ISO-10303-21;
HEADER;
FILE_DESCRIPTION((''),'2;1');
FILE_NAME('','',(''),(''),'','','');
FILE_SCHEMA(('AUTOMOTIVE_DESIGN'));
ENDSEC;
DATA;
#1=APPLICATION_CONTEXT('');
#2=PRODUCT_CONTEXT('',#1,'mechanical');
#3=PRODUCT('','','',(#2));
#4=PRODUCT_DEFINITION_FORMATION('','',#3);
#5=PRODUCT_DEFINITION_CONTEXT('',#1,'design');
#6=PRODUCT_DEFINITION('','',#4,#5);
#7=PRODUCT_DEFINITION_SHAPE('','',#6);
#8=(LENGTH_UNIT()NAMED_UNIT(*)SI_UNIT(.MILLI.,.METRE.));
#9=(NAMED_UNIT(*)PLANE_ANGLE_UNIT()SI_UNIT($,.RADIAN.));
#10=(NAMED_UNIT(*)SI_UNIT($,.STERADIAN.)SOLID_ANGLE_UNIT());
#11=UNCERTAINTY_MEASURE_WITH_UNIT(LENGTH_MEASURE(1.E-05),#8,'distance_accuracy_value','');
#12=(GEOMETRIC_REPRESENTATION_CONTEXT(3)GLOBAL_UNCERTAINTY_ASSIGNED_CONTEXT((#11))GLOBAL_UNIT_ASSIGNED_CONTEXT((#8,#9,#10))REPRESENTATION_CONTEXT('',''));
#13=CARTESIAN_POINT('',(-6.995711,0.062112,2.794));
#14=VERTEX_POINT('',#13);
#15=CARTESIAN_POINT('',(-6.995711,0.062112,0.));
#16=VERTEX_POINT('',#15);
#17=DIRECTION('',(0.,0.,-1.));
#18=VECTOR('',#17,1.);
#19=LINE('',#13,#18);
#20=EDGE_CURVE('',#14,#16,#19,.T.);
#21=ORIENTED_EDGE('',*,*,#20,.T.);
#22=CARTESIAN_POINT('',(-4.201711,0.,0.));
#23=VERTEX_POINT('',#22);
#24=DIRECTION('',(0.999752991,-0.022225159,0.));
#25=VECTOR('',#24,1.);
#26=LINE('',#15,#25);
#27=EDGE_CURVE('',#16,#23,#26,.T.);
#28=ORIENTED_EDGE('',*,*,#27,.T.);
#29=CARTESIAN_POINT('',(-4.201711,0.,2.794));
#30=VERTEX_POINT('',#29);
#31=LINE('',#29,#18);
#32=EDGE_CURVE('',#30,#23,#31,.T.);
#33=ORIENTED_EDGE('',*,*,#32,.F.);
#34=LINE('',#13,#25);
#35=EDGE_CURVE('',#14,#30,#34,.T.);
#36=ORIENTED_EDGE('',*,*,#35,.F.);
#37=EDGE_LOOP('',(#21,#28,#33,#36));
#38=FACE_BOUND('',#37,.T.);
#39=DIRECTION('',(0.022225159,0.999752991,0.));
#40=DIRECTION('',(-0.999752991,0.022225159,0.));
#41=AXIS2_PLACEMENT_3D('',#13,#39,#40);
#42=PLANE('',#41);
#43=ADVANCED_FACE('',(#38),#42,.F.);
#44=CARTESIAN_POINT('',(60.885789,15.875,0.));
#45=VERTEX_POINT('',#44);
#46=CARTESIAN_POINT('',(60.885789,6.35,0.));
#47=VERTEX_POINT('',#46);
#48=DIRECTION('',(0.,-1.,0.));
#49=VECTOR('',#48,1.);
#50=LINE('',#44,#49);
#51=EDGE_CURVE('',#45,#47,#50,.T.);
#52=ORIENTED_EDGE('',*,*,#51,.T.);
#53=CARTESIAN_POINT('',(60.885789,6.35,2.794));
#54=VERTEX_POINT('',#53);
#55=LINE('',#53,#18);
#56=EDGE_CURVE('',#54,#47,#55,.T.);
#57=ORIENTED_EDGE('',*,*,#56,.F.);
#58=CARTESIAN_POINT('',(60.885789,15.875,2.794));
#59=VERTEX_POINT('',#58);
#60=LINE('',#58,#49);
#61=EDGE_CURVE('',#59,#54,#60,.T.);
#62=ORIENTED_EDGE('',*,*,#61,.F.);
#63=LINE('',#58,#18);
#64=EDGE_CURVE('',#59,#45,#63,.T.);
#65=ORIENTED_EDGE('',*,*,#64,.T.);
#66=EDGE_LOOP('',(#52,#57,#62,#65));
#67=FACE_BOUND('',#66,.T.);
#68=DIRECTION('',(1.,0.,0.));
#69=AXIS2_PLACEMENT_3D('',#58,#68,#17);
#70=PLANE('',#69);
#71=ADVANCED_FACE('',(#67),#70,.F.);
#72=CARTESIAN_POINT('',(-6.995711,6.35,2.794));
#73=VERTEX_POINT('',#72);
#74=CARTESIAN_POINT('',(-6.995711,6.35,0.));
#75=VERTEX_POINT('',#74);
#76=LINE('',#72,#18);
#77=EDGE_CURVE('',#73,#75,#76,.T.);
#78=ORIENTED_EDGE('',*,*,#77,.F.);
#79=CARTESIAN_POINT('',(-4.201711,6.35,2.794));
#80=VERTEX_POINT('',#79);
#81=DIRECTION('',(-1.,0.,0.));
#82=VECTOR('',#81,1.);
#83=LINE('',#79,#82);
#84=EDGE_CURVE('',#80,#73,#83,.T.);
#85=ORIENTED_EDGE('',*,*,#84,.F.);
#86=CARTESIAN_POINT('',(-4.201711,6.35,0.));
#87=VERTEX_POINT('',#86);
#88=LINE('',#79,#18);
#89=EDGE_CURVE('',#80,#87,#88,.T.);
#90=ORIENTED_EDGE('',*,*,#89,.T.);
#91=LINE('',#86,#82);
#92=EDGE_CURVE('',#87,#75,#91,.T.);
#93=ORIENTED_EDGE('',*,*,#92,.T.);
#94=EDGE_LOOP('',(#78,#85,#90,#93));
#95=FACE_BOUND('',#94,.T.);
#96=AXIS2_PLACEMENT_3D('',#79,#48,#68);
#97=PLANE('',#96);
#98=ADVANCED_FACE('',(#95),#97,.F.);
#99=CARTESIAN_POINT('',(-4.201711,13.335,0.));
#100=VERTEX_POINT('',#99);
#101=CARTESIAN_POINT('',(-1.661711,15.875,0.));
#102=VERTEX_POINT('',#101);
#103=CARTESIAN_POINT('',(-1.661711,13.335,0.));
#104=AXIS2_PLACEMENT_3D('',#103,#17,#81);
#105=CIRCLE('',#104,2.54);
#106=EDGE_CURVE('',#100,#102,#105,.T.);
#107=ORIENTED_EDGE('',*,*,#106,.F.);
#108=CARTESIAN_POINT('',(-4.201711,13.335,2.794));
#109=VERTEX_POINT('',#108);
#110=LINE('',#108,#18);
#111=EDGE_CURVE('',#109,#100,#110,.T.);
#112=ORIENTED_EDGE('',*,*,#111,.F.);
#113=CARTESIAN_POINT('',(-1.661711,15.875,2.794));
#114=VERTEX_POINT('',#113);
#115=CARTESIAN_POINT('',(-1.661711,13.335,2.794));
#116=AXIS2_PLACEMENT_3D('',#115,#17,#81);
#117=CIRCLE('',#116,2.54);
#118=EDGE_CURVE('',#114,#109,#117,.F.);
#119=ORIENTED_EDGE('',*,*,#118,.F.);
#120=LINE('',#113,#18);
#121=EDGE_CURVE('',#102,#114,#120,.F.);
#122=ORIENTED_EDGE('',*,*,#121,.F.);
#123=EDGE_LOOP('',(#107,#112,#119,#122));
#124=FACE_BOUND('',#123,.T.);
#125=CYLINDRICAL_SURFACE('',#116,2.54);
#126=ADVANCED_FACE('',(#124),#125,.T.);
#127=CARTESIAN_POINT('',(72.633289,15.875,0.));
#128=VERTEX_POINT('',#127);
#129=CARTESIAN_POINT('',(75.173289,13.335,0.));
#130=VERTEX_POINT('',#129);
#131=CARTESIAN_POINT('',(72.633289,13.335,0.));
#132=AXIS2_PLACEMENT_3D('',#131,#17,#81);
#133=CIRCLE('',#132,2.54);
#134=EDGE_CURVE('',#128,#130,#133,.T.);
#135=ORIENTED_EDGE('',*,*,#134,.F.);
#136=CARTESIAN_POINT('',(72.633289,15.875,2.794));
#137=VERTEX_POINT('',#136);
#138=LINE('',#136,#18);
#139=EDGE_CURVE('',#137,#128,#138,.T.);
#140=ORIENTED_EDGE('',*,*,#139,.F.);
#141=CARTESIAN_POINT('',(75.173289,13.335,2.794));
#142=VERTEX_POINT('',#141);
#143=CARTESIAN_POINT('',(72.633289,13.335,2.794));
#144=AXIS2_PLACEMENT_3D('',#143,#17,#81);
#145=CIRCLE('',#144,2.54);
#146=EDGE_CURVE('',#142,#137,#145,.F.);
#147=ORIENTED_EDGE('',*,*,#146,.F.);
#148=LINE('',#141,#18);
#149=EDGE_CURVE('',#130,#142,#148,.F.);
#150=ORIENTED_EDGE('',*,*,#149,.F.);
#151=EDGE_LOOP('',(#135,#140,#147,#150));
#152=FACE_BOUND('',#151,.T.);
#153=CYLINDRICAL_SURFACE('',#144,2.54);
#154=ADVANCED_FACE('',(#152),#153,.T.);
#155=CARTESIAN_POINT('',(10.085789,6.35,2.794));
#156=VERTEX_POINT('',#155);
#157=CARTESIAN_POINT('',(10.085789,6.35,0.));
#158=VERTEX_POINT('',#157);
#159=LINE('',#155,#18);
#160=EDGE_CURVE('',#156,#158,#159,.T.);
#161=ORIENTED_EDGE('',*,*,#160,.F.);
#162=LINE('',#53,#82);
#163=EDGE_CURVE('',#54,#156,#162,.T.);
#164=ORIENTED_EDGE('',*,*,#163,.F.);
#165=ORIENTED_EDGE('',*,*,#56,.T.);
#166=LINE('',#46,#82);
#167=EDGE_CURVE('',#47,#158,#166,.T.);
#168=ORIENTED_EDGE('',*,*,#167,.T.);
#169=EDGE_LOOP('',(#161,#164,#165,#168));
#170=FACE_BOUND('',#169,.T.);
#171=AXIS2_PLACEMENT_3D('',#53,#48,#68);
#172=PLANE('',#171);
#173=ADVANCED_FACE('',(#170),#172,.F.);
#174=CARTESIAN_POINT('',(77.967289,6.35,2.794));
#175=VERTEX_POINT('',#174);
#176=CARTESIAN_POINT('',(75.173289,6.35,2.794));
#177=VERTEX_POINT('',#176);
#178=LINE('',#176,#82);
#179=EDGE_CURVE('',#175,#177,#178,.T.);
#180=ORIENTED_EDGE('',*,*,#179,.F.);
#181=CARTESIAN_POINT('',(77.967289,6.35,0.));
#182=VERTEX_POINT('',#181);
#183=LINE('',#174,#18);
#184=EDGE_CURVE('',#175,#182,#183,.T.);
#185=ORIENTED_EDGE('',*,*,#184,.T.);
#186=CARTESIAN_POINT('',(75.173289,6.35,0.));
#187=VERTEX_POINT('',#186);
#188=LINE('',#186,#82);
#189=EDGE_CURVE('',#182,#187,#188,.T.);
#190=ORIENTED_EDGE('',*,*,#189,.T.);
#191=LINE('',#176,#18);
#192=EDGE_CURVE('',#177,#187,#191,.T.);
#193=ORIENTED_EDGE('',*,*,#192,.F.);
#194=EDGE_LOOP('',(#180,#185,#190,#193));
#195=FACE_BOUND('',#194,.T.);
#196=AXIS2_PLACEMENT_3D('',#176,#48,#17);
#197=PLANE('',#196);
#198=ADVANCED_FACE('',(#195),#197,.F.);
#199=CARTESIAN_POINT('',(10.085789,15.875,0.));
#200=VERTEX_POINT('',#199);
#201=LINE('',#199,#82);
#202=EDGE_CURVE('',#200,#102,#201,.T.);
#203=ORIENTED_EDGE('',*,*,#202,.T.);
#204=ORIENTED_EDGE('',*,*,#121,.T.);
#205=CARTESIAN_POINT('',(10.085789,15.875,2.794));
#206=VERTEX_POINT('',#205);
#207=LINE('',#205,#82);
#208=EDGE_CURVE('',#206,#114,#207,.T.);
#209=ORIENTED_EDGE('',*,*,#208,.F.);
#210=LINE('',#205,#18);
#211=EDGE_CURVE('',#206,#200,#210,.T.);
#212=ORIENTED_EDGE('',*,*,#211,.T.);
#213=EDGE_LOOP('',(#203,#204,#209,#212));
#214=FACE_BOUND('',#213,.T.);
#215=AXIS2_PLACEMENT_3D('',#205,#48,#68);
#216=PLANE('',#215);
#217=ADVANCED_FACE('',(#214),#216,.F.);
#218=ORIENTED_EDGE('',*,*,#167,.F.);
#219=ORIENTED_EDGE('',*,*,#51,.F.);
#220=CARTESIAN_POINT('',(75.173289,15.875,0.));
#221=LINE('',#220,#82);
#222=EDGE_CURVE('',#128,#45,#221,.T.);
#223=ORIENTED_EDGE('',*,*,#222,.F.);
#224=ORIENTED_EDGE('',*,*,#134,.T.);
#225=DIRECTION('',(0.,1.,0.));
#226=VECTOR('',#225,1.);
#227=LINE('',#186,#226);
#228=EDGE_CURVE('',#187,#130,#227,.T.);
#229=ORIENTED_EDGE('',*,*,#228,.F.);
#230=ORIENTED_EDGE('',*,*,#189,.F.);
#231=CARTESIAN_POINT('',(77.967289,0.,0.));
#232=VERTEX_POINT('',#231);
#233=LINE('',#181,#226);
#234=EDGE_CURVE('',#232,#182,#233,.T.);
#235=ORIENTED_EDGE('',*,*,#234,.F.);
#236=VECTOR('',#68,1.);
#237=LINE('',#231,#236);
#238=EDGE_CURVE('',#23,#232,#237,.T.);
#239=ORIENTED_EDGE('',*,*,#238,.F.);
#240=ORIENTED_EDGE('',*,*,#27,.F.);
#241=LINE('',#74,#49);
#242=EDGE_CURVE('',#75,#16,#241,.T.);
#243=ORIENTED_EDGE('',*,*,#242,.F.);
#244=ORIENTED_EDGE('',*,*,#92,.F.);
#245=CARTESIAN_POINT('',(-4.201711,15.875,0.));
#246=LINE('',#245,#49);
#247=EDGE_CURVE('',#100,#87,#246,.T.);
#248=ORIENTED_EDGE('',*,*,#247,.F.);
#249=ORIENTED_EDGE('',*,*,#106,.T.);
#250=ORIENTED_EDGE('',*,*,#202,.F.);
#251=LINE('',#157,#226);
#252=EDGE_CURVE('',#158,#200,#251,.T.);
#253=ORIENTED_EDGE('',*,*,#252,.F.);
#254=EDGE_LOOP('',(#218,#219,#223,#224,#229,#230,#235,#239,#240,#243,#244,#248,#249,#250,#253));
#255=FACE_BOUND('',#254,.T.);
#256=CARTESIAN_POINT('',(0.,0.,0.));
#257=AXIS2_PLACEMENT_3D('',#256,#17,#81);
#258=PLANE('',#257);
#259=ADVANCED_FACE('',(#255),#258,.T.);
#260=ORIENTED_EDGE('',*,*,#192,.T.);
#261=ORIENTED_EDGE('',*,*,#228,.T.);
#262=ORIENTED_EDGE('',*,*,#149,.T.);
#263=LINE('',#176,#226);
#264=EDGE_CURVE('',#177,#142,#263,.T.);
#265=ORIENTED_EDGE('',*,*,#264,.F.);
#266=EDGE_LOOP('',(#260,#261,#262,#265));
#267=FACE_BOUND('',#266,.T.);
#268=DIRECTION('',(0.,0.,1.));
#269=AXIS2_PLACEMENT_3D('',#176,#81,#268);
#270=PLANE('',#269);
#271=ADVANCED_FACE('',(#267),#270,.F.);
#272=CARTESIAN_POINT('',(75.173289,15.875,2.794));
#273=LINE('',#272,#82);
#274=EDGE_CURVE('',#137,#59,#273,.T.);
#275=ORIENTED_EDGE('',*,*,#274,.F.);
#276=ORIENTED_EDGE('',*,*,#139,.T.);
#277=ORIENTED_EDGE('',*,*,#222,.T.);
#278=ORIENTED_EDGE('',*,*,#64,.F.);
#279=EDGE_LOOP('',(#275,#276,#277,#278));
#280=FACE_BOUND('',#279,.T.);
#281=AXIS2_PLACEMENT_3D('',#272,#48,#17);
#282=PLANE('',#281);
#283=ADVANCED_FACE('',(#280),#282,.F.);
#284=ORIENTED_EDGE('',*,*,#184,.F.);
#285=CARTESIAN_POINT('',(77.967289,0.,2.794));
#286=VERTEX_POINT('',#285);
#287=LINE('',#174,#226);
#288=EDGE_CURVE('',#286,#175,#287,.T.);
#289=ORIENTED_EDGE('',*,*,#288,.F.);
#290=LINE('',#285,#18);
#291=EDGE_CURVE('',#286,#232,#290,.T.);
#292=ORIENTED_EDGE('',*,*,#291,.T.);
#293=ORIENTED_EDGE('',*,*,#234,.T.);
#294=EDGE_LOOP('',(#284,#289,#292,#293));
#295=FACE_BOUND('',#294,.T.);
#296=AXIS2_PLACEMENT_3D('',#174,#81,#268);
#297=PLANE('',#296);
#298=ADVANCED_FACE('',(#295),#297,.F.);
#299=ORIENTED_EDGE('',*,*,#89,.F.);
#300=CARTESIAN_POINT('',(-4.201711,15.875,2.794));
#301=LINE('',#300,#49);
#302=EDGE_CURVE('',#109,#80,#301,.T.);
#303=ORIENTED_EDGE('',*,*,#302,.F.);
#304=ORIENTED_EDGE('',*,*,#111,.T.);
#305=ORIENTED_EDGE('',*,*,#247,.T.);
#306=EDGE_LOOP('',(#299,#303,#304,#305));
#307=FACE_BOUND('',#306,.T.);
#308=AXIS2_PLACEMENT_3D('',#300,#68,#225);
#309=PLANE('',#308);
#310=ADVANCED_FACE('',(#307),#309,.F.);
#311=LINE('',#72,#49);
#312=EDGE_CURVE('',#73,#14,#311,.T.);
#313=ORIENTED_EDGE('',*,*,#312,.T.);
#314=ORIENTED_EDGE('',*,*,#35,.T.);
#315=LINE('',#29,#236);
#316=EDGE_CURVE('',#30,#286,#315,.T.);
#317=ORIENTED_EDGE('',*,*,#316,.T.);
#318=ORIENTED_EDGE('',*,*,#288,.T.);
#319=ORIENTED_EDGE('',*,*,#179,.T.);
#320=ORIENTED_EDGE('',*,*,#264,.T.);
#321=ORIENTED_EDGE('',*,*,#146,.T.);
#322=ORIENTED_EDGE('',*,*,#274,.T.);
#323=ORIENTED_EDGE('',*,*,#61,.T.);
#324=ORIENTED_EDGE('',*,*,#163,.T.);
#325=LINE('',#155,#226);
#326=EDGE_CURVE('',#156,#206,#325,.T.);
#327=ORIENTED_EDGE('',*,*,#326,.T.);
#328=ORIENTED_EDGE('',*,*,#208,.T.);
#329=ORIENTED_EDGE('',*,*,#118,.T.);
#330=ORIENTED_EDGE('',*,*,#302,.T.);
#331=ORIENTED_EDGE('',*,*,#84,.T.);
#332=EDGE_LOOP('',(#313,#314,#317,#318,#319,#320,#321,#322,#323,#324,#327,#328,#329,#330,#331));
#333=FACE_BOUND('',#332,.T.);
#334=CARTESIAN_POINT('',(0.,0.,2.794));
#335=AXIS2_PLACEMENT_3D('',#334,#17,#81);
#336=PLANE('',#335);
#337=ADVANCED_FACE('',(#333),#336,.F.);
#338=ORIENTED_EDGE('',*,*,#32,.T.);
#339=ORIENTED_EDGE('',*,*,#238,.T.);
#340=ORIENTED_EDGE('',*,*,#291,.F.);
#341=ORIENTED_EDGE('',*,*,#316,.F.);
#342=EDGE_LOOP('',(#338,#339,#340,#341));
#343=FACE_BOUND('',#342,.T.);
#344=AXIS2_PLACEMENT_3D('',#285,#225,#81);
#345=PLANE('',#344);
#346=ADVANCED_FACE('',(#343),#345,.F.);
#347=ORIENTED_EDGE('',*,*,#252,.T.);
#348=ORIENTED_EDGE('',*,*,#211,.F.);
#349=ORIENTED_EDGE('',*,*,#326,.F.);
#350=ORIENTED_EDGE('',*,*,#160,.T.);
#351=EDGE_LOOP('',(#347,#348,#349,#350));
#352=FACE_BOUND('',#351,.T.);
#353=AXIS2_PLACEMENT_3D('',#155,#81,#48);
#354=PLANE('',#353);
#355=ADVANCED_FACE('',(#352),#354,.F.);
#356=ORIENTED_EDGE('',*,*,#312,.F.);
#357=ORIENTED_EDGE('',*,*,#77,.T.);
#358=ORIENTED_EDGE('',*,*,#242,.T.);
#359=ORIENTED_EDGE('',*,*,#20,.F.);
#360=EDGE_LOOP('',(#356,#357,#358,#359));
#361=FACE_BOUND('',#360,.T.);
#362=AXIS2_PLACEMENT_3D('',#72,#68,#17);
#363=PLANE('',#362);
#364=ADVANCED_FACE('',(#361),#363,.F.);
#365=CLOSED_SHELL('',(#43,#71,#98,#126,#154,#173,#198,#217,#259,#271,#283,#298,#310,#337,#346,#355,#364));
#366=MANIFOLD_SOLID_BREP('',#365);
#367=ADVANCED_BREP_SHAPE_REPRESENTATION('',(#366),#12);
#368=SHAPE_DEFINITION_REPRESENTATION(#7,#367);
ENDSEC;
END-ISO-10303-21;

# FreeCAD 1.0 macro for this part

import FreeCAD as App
import Part
import Sketcher
from FreeCAD import Vector
Q = App.Units.Quantity


def edges_at(feature, points):
    """Names of the edges that pass closest to the given points."""
    edges = feature.Shape.Edges
    near = lambda p: min(range(len(edges)), key=lambda i: edges[i].distToShape(Part.Vertex(*p))[0])
    return sorted({f"Edge{near(p) + 1}" for p in points})


def add_polygon(sketch, points):
    """Adds a closed chain of lines whose ends are joined by coincident constraints."""
    first, n = sketch.GeometryCount, len(points)
    for a, b in zip(points, points[1:] + points[:1]):
        sketch.addGeometry(Part.LineSegment(App.Vector(*a, 0), App.Vector(*b, 0)), False)
    for i in range(n):
        sketch.addConstraint(Sketcher.Constraint("Coincident", first + i, 2, first + (i + 1) % n, 1))

doc = App.newDocument("Part")
body = doc.addObject("PartDesign::Body", "Body")

sketch1 = body.newObject("Sketcher::SketchObject", "Sketch")
sketch1.AttachmentSupport = (doc.getObject("XY_Plane"), [""])
sketch1.MapMode = "FlatFace"
add_polygon(sketch1, [(-4.201711, 0), (77.967289, 0), (77.967289, 6.35), (75.173289, 6.35), (75.173289, 15.875), (60.885789, 15.875), (60.885789, 6.35), (10.085789, 6.35), (10.085789, 15.875), (-4.201711, 15.875), (-4.201711, 6.35), (-6.995711, 6.35), (-6.995711, 0.062112)])
sketch1.addConstraint([
    Sketcher.Constraint("Horizontal", 0),
    Sketcher.Constraint("Vertical", 1),
    Sketcher.Constraint("Horizontal", 2),
    Sketcher.Constraint("Vertical", 3),
    Sketcher.Constraint("Horizontal", 4),
    Sketcher.Constraint("Vertical", 5),
    Sketcher.Constraint("Horizontal", 6),
    Sketcher.Constraint("Vertical", 7),
    Sketcher.Constraint("Horizontal", 8),
    Sketcher.Constraint("Vertical", 9),
    Sketcher.Constraint("Horizontal", 10),
    Sketcher.Constraint("Vertical", 11),
    Sketcher.Constraint("PointOnObject", 0, 2, -1),
    Sketcher.Constraint("Horizontal", 2, 2, 5, 2),
    Sketcher.Constraint("Horizontal", 4, 2, 7, 2),
    Sketcher.Constraint("Horizontal", 6, 2, 9, 2),
    Sketcher.Constraint("Vertical", 9, 2, 12, 2),
    Sketcher.Constraint("Equal", 4, 8),
    Sketcher.Constraint("Equal", 2, 10),
    Sketcher.Constraint("DistanceX", 6, 2, 6, 1, Q("2 in")),
    Sketcher.Constraint("DistanceX", 2, 2, 2, 1, Q("0.11 in")),
    Sketcher.Constraint("DistanceY", 1, 1, 1, 2, Q("0.25 in")),
    Sketcher.Constraint("DistanceX", 0, 1, 0, 2, Q("3.235 in")),
    Sketcher.Constraint("DistanceY", 3, 1, 3, 2, Q("0.375 in")),
    Sketcher.Constraint("Distance", 12, 2.79469),
    Sketcher.Constraint("DistanceX", -1, 1, 0, 2, 77.967289),
])
pad1 = body.newObject("PartDesign::Pad", "Pad")
pad1.Profile = sketch1
pad1.Length = Q("0.11 in")
doc.recompute()

fillet = body.newObject("PartDesign::Fillet", "Fillet")
fillet.Base = (pad1, edges_at(pad1, [(-4.202, 15.875, 1.397), (75.173, 15.875, 1.397)]))
fillet.Radius = Q("0.1 in")

doc.recompute()
